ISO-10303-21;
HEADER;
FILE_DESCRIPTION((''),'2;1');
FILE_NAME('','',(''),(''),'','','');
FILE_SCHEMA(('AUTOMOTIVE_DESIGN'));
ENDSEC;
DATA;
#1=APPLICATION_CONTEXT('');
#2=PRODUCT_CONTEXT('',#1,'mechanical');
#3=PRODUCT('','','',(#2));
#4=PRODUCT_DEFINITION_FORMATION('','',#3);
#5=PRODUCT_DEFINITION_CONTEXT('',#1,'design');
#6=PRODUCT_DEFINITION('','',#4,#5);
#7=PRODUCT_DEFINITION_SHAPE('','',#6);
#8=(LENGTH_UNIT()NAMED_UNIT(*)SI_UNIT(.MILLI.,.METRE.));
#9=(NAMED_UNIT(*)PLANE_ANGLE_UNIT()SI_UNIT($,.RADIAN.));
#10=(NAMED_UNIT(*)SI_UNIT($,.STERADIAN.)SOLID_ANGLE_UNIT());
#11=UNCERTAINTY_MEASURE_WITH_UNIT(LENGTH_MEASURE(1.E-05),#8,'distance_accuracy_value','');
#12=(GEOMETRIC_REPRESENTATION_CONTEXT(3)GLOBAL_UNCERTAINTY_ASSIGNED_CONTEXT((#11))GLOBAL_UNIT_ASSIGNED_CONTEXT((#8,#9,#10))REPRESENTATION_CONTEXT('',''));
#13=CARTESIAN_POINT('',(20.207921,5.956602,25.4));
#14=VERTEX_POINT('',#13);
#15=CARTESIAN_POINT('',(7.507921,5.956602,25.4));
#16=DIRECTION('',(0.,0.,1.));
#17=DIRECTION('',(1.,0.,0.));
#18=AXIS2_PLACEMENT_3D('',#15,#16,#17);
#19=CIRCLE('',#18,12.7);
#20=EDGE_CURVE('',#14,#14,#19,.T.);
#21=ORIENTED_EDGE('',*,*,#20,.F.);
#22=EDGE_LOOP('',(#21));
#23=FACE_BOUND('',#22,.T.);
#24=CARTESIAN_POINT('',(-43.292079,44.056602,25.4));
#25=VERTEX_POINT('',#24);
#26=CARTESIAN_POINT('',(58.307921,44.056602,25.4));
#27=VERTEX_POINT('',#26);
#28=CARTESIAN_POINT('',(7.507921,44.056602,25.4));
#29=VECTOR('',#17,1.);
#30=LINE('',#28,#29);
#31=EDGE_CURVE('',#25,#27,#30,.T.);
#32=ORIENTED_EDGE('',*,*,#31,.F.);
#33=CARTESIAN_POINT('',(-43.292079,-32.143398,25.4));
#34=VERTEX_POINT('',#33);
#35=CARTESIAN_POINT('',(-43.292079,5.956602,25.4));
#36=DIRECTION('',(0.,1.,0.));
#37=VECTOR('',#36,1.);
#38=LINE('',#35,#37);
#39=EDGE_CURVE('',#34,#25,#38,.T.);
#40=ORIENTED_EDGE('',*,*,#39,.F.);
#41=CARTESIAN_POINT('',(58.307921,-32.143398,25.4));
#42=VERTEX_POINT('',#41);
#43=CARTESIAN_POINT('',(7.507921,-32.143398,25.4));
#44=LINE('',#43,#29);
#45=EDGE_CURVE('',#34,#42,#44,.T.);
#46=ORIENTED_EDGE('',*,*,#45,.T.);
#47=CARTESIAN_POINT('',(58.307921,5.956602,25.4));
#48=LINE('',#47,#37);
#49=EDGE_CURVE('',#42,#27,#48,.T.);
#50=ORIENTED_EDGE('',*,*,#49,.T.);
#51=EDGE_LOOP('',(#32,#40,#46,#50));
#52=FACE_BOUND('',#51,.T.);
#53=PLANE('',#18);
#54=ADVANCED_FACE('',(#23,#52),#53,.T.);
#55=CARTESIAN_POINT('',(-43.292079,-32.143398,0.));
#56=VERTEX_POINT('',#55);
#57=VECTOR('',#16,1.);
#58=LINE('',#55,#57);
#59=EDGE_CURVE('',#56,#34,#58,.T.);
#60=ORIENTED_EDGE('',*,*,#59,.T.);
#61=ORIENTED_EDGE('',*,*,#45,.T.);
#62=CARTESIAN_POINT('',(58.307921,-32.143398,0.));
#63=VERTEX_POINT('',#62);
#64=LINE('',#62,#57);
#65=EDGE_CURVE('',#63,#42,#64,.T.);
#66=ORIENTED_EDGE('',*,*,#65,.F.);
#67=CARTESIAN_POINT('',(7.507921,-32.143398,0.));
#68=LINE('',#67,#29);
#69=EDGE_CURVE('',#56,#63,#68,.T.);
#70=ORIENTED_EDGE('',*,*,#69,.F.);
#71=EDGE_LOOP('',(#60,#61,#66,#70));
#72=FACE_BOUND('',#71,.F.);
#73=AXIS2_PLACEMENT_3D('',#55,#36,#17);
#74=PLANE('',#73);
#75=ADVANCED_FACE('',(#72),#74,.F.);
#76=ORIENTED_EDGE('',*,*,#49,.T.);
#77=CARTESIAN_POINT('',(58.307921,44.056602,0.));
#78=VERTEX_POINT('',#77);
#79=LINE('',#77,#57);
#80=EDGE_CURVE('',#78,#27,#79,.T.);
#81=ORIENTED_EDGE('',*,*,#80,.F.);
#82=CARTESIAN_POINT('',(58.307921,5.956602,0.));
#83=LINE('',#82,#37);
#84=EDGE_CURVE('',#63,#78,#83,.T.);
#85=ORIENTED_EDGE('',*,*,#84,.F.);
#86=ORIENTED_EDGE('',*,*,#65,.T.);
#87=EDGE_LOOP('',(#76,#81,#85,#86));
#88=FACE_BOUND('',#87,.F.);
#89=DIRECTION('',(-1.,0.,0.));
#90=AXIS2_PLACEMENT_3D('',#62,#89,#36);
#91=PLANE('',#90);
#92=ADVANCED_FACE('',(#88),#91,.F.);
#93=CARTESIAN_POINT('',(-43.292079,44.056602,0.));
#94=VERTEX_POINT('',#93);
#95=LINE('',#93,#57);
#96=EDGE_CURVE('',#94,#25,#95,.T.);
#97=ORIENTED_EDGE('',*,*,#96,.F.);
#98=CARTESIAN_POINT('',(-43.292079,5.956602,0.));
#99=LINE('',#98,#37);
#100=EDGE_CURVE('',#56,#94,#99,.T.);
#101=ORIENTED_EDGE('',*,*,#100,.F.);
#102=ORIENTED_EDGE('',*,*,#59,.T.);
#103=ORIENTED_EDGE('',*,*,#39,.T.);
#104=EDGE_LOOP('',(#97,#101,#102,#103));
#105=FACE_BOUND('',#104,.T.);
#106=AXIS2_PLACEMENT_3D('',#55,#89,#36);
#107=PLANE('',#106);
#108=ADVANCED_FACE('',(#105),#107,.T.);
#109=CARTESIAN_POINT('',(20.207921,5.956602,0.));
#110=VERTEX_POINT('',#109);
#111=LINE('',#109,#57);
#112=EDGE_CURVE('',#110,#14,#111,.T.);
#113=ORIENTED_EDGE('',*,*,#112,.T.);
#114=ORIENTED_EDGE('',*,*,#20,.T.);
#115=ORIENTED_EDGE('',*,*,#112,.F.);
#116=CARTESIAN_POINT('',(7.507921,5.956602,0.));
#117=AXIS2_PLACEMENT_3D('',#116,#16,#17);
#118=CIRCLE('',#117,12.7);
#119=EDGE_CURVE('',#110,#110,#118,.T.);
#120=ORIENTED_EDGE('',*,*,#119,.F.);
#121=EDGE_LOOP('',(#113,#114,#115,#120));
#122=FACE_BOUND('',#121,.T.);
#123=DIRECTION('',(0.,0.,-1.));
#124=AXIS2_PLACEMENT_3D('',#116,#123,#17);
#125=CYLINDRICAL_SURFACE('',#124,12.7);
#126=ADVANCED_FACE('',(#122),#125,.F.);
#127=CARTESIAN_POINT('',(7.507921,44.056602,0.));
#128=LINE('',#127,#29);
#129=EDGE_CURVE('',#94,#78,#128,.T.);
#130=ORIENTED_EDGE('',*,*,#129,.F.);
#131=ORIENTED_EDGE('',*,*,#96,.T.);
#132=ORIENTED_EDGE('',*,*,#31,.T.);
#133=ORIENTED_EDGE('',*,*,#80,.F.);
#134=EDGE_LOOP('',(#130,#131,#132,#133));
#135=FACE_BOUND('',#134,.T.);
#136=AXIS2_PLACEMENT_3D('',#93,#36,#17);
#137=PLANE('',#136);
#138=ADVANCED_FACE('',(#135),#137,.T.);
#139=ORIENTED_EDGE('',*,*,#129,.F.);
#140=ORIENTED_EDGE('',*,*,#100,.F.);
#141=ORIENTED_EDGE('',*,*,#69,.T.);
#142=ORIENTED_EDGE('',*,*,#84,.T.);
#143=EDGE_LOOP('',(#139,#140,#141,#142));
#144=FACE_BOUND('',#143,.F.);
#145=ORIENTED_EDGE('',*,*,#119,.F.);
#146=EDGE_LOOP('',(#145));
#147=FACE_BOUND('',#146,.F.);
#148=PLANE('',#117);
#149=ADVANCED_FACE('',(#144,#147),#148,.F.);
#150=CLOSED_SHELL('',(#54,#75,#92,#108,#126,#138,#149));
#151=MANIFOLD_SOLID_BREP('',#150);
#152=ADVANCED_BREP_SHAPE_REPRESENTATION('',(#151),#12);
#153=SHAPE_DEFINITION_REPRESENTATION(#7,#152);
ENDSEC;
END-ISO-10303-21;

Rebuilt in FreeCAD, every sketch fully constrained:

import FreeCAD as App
import Part
import Sketcher

V = App.Vector
Q = App.Units.Quantity


def add_polygon(sketch, points):
    """Adds a closed chain of lines whose ends are joined by coincident constraints."""
    first, n = sketch.GeometryCount, len(points)
    for a, b in zip(points, points[1:] + points[:1]):
        sketch.addGeometry(Part.LineSegment(App.Vector(*a, 0), App.Vector(*b, 0)), False)
    for i in range(n):
        sketch.addConstraint(Sketcher.Constraint("Coincident", first + i, 2, first + (i + 1) % n, 1))

doc = App.newDocument("Part")
params = doc.addObject("Spreadsheet::Sheet", "Params")
for row, (alias, value) in enumerate([
    ("sketch1_diameter", "1 in"),
    ("sketch1_width", "4 in"),
    ("sketch1_height", "3 in"),
    ("pad1_length", "1 in"),
    ("fillet_radius", "0.125 in"),
    ("sketch2_diameter", "1 in"),
    ("sketch2_width", "4 in"),
    ("sketch2_height", "3 in"),
    ("pad2_length", "1 in"),
], start=1):
    params.set(f"A{row}", alias)
    params.set(f"B{row}", "=" + value)
    params.setAlias(f"B{row}", alias)

body = doc.addObject("PartDesign::Body", "Body")

sketch1 = body.newObject("Sketcher::SketchObject", "Sketch")
sketch1.AttachmentSupport = (doc.getObject("XY_Plane"), [""])
sketch1.MapMode = "FlatFace"
add_polygon(sketch1, [(-43.292079, 44.056602), (-43.292079, -32.143398), (58.307921, -32.143398), (58.307921, 44.056602)])
sketch1.addGeometry(Part.Circle(V(7.507921, 5.956602, 0), V(0, 0, 1), 12.7), False)
sketch1.addConstraint([
    Sketcher.Constraint("Vertical", 0),
    Sketcher.Constraint("Horizontal", 1),
    Sketcher.Constraint("Vertical", 2),
    Sketcher.Constraint("Horizontal", 3),
    Sketcher.Constraint("Diameter", 4, Q("1 in")),
    Sketcher.Constraint("DistanceX", 1, 1, 1, 2, Q("4 in")),
    Sketcher.Constraint("DistanceY", 0, 2, 0, 1, Q("3 in")),
    Sketcher.Constraint("DistanceX", 0, 2, 4, 3, Q("2 in")),
    Sketcher.Constraint("DistanceY", 0, 2, 4, 3, Q("1.5 in")),
    Sketcher.Constraint("DistanceX", -1, 1, 4, 3, 7.507921),
    Sketcher.Constraint("DistanceY", -1, 1, 4, 3, 5.956602),
])
sketch1.setExpression("Constraints[8]", "Params.sketch1_diameter")
sketch1.setExpression("Constraints[9]", "Params.sketch1_width")
sketch1.setExpression("Constraints[10]", "Params.sketch1_height")
pad1 = body.newObject("PartDesign::Pad", "Pad")
pad1.Profile = sketch1
pad1.setExpression("Length", "Params.pad1_length")
doc.recompute()

fillet = body.newObject("PartDesign::Fillet", "Fillet")
fillet.Base = (pad1, ["Edge1"])
fillet.UseAllEdges = True
fillet.setExpression("Radius", "Params.fillet_radius")
body2 = doc.addObject("PartDesign::Body", "Body001")

sketch2 = body2.newObject("Sketcher::SketchObject", "Sketch001")
sketch2.AttachmentSupport = (doc.getObject("XY_Plane001"), [""])
sketch2.MapMode = "FlatFace"
add_polygon(sketch2, [(-43.292079, 44.056602), (-43.292079, -32.143398), (58.307921, -32.143398), (58.307921, 44.056602)])
sketch2.addGeometry(Part.Circle(V(7.507921, 5.956602, 0), V(0, 0, 1), 12.7), False)
sketch2.addConstraint([
    Sketcher.Constraint("Vertical", 0),
    Sketcher.Constraint("Horizontal", 1),
    Sketcher.Constraint("Vertical", 2),
    Sketcher.Constraint("Horizontal", 3),
    Sketcher.Constraint("Diameter", 4, Q("1 in")),
    Sketcher.Constraint("DistanceX", 1, 1, 1, 2, Q("4 in")),
    Sketcher.Constraint("DistanceY", 0, 2, 0, 1, Q("3 in")),
    Sketcher.Constraint("DistanceX", 0, 2, 4, 3, Q("2 in")),
    Sketcher.Constraint("DistanceY", 0, 2, 4, 3, Q("1.5 in")),
    Sketcher.Constraint("DistanceX", -1, 1, 4, 3, 7.507921),
    Sketcher.Constraint("DistanceY", -1, 1, 4, 3, 5.956602),
])
sketch2.setExpression("Constraints[8]", "Params.sketch2_diameter")
sketch2.setExpression("Constraints[9]", "Params.sketch2_width")
sketch2.setExpression("Constraints[10]", "Params.sketch2_height")
pad2 = body2.newObject("PartDesign::Pad", "Pad001")
pad2.Profile = sketch2
pad2.setExpression("Length", "Params.pad2_length")
body.Visibility = False

doc.recompute()
